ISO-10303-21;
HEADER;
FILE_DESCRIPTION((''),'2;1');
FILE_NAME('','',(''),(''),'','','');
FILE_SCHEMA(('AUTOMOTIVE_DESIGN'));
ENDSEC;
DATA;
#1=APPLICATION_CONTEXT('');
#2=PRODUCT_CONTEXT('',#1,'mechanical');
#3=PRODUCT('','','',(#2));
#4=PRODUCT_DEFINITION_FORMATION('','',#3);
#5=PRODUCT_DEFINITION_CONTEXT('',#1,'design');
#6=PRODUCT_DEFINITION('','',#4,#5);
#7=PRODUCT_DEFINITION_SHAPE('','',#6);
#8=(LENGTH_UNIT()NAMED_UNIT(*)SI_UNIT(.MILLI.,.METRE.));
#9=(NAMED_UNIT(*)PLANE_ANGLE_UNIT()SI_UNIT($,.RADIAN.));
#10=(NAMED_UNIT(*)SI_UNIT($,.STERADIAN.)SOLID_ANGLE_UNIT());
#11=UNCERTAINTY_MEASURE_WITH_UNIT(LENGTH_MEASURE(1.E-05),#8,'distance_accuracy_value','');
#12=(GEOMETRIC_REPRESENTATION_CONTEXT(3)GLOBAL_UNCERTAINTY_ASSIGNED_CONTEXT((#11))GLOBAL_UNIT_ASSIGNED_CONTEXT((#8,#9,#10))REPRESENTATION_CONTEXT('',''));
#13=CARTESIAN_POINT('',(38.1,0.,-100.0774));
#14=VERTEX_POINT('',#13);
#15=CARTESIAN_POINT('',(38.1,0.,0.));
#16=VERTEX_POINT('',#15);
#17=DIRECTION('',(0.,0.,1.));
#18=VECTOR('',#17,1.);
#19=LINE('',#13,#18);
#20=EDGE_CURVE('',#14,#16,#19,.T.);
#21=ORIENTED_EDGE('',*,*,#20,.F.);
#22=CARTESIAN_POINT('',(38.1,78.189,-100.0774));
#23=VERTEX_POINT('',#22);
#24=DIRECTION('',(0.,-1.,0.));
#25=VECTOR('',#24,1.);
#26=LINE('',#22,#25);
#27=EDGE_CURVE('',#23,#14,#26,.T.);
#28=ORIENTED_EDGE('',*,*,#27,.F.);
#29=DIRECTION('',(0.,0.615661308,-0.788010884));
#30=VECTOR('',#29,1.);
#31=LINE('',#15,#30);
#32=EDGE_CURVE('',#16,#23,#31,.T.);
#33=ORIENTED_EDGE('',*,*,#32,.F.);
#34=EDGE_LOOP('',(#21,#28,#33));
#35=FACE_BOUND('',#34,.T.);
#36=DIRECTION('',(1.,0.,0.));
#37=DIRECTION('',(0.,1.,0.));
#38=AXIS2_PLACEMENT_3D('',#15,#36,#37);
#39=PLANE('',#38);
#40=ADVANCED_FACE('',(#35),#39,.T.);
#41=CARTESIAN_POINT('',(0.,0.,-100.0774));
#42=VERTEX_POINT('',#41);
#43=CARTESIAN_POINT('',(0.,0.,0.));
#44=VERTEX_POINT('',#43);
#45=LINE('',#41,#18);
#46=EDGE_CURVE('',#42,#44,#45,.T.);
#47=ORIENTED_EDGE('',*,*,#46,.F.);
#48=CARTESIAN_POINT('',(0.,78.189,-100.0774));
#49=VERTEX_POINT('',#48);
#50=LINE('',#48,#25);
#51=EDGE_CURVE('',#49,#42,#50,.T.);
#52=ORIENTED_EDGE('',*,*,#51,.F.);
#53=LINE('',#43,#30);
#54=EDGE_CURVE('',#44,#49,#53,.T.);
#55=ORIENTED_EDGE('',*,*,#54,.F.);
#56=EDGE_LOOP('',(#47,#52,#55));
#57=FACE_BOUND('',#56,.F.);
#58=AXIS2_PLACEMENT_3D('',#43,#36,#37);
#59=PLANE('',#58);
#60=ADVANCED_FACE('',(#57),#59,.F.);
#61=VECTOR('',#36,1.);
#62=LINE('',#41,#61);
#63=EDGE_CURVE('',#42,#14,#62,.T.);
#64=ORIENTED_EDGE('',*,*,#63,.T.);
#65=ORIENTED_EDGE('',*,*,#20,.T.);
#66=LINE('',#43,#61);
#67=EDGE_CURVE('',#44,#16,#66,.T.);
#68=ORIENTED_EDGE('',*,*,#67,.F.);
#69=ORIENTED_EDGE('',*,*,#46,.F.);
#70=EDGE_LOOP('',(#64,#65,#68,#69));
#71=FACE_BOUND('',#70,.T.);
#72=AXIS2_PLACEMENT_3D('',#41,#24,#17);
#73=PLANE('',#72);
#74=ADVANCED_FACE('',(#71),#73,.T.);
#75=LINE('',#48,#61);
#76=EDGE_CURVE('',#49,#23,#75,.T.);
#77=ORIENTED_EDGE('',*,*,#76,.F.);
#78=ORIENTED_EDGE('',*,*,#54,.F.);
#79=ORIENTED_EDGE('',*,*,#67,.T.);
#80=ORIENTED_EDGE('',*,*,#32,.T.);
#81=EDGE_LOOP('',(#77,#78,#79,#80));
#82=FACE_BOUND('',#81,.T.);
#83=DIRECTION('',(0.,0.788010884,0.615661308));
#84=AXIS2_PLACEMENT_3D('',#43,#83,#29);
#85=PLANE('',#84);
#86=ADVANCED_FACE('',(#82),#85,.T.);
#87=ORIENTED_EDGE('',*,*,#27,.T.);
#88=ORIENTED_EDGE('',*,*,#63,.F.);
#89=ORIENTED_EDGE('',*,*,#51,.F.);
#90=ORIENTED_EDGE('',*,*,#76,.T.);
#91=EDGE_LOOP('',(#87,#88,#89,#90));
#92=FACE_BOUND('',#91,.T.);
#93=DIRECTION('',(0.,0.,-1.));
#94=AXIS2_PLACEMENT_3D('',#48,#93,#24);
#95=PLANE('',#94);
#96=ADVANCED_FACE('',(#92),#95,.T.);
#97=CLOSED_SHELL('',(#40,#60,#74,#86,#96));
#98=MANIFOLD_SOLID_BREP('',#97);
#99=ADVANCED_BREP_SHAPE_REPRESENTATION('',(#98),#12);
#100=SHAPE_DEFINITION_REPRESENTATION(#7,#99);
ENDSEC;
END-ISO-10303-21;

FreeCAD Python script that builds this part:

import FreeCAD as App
import Part
import Sketcher
from FreeCAD import Vector
Q = App.Units.Quantity


def add_polygon(sketch, points):
    """Adds a closed chain of lines whose ends are joined by coincident constraints."""
    first, n = sketch.GeometryCount, len(points)
    for a, b in zip(points, points[1:] + points[:1]):
        sketch.addGeometry(Part.LineSegment(App.Vector(*a, 0), App.Vector(*b, 0)), False)
    for i in range(n):
        sketch.addConstraint(Sketcher.Constraint("Coincident", first + i, 2, first + (i + 1) % n, 1))

doc = App.newDocument("Part")
body = doc.addObject("PartDesign::Body", "Body")

# Sketch on YZ plane
sketch1 = body.newObject("Sketcher::SketchObject", "Sketch")
sketch1.AttachmentSupport = (doc.getObject("YZ_Plane"), [""])
sketch1.MapMode = "FlatFace"
add_polygon(sketch1, [(78.189, -100.0774), (0, 0), (0, -100.0774)])  # lines 0-2
sketch1.addConstraint([
    Sketcher.Constraint("Vertical", 1),
    Sketcher.Constraint("Horizontal", 2),
    Sketcher.Constraint("Coincident", 0, 2, -1, 1),
    Sketcher.Constraint("Distance", 0, Q("5 in")),
    Sketcher.Constraint("Angle", 0, Q("128 deg")),
])
pad1 = body.newObject("PartDesign::Pad", "Pad")
pad1.Profile = sketch1
pad1.Length = Q("1.5 in")

doc.recompute()
